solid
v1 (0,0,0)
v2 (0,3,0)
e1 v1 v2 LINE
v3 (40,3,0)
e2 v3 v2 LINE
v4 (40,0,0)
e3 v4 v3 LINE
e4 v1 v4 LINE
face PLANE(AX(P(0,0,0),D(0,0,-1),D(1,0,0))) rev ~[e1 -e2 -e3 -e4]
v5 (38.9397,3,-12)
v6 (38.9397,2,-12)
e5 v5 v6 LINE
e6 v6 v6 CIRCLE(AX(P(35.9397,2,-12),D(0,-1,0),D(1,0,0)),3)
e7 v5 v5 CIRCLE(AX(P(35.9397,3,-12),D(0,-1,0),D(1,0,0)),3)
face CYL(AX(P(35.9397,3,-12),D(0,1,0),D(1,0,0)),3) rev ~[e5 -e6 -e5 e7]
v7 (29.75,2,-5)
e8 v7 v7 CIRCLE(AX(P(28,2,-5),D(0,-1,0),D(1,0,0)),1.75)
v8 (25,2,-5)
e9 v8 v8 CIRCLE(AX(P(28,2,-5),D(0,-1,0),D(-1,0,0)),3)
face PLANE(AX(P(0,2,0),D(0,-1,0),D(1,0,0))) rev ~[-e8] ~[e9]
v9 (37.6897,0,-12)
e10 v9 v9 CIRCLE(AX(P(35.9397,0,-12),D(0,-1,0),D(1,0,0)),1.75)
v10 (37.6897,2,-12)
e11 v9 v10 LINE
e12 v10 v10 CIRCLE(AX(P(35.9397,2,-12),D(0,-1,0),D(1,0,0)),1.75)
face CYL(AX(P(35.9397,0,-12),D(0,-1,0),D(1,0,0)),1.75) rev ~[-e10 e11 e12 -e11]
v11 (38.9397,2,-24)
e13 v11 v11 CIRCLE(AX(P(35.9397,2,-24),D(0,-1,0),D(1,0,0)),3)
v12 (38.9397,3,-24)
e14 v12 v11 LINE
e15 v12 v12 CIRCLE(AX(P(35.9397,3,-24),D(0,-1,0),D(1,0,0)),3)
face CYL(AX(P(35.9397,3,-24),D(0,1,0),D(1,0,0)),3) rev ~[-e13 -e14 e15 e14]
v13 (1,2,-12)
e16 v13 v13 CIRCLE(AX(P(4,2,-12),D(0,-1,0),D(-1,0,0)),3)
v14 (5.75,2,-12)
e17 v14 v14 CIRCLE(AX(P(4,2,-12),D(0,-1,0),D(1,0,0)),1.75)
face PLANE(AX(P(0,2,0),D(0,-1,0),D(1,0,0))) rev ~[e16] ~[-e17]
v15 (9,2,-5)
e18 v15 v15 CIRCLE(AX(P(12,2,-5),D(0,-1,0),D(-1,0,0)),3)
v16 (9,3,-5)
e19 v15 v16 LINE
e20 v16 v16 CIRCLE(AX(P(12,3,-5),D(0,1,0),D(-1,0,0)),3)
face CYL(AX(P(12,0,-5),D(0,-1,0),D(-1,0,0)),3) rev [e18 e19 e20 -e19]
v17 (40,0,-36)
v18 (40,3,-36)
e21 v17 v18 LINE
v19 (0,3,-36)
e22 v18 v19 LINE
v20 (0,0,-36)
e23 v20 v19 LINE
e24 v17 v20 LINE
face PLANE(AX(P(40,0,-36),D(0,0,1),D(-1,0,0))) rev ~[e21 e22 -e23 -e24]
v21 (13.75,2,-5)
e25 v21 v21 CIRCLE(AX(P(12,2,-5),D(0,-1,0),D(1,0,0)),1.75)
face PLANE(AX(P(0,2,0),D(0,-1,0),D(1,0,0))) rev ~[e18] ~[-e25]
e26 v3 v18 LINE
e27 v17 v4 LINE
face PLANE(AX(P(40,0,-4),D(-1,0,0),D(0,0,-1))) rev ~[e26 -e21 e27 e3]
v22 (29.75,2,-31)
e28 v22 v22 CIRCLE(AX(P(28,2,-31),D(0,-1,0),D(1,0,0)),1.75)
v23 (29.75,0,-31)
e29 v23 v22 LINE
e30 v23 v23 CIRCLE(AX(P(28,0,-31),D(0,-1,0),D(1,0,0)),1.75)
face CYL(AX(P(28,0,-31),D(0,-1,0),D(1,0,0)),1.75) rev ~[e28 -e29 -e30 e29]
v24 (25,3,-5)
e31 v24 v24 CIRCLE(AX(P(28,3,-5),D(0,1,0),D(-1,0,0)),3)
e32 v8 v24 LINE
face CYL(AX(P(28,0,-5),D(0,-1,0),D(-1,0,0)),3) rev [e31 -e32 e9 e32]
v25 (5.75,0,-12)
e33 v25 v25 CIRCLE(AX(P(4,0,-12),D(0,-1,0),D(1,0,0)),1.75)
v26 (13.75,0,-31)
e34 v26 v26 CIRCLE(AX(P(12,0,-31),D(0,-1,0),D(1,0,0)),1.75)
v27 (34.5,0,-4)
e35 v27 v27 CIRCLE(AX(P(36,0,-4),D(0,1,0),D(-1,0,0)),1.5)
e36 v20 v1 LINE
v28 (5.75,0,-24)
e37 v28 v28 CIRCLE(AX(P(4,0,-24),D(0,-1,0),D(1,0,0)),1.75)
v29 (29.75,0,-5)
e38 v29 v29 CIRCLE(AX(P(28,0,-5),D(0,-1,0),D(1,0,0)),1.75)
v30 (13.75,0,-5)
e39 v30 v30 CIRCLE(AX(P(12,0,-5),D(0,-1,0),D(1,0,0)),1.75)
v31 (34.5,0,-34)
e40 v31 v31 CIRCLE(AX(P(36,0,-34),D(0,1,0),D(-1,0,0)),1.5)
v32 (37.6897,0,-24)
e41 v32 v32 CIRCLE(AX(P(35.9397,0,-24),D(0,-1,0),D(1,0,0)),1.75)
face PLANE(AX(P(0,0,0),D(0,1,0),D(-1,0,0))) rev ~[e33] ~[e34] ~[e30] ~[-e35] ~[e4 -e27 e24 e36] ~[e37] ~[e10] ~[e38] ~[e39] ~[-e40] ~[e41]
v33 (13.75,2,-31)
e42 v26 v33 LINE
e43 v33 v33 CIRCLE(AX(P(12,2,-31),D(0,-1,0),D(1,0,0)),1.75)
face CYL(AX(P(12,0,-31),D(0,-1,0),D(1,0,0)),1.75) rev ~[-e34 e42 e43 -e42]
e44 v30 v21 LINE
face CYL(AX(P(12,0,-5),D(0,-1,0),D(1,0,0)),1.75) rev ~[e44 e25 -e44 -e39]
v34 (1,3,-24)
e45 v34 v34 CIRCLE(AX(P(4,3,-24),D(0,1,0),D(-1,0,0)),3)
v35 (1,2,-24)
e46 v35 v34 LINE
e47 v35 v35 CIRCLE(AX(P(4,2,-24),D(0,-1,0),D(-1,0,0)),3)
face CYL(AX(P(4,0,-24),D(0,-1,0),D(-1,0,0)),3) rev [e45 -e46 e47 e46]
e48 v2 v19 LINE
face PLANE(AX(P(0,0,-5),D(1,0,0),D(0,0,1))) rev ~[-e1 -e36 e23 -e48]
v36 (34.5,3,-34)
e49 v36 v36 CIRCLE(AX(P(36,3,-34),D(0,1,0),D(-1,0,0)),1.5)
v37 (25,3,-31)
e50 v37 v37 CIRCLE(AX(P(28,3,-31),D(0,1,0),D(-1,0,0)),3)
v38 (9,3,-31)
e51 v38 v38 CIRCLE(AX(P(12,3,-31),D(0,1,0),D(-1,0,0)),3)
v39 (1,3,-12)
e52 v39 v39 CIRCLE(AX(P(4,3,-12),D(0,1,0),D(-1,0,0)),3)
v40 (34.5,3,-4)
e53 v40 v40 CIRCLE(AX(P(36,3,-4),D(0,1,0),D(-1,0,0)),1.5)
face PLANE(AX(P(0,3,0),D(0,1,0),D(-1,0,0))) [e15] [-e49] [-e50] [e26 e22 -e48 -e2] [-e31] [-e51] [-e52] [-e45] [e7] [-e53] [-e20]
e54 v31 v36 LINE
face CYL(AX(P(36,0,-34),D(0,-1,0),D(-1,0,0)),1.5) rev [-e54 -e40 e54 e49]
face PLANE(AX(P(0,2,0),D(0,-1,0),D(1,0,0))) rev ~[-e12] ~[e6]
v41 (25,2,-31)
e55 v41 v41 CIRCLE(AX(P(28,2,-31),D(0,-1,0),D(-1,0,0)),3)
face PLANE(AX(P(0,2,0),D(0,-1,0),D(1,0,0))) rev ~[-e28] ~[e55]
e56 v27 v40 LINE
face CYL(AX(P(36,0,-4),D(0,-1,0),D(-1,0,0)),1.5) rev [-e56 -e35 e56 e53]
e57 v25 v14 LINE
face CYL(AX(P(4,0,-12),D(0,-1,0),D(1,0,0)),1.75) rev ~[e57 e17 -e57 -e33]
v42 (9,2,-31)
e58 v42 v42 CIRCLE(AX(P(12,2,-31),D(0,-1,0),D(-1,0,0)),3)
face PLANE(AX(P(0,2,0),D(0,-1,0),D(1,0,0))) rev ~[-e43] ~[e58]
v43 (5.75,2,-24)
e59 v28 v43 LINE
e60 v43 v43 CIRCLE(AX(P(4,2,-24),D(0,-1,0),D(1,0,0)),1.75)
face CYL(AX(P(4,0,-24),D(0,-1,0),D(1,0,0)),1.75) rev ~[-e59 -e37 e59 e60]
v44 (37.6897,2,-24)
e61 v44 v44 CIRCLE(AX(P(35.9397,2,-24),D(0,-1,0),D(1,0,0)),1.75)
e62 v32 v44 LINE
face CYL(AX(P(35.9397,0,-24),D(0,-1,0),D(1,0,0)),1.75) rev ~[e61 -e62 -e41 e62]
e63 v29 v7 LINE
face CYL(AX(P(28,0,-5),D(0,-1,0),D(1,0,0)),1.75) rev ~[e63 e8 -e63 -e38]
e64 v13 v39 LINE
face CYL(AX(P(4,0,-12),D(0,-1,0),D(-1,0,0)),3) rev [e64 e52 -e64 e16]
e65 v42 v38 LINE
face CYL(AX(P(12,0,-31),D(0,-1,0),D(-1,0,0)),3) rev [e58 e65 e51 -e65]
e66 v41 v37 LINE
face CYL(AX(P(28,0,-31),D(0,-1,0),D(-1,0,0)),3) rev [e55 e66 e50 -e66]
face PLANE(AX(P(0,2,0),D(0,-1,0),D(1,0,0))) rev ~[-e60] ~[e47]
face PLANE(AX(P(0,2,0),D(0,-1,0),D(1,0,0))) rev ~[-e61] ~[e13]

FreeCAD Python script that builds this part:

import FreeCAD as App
import Part
import Sketcher
from FreeCAD import Vector


def add_polygon(sketch, points):
    """Adds a closed chain of lines whose ends are joined by coincident constraints."""
    first, n = sketch.GeometryCount, len(points)
    for a, b in zip(points, points[1:] + points[:1]):
        sketch.addGeometry(Part.LineSegment(App.Vector(*a, 0), App.Vector(*b, 0)), False)
    for i in range(n):
        sketch.addConstraint(Sketcher.Constraint("Coincident", first + i, 2, first + (i + 1) % n, 1))

doc = App.newDocument("Part")
body = doc.addObject("PartDesign::Body", "Body")

sketch1 = body.newObject("Sketcher::SketchObject", "Sketch")
sketch1.AttachmentSupport = (doc.getObject("XZ_Plane"), [""])
sketch1.MapMode = "FlatFace"
add_polygon(sketch1, [(0, -36), (0, 0), (40, 0), (40, -36)])
sketch1.addGeometry(Part.Circle(Vector(36, -34, 0), Vector(0, 0, 1), 1.5), False)
sketch1.addGeometry(Part.Circle(Vector(28, -31, 0), Vector(0, 0, 1), 3), False)
sketch1.addGeometry(Part.Circle(Vector(12, -31, 0), Vector(0, 0, 1), 3), False)
sketch1.addGeometry(Part.Circle(Vector(4, -24, 0), Vector(0, 0, 1), 3), False)
sketch1.addGeometry(Part.Circle(Vector(36, -4, 0), Vector(0, 0, 1), 1.5), False)
sketch1.addGeometry(Part.Circle(Vector(28, -5, 0), Vector(0, 0, 1), 3), False)
sketch1.addGeometry(Part.Circle(Vector(4, -12, 0), Vector(0, 0, 1), 3), False)
sketch1.addGeometry(Part.Circle(Vector(12, -5, 0), Vector(0, 0, 1), 3), False)
sketch1.addConstraint(Sketcher.Constraint("Vertical", 0))
sketch1.addConstraint(Sketcher.Constraint("Horizontal", 1))
sketch1.addConstraint(Sketcher.Constraint("Vertical", 2))
sketch1.addConstraint(Sketcher.Constraint("Horizontal", 3))
sketch1.addConstraint(Sketcher.Constraint("Coincident", 0, 2, -1, 1))
sketch1.addConstraint(Sketcher.Constraint("Equal", 5, 6))
sketch1.addConstraint(Sketcher.Constraint("Equal", 6, 7))
sketch1.addConstraint(Sketcher.Constraint("Equal", 4, 8))
sketch1.addConstraint(Sketcher.Constraint("Equal", 7, 9))
sketch1.addConstraint(Sketcher.Constraint("Equal", 9, 10))
sketch1.addConstraint(Sketcher.Constraint("Equal", 10, 11))
sketch1.addConstraint(Sketcher.Constraint("Horizontal", 5, 3, 6, 3))
sketch1.addConstraint(Sketcher.Constraint("Horizontal", 9, 3, 11, 3))
sketch1.addConstraint(Sketcher.Constraint("Vertical", 4, 3, 8, 3))
sketch1.addConstraint(Sketcher.Constraint("Vertical", 5, 3, 9, 3))
sketch1.addConstraint(Sketcher.Constraint("Vertical", 7, 3, 10, 3))
sketch1.addConstraint(Sketcher.Constraint("Vertical", 6, 3, 11, 3))
sketch1.addConstraint(Sketcher.Constraint("Diameter", 4, 3.0))
sketch1.addConstraint(Sketcher.Constraint("Diameter", 5, 6.0))
sketch1.addConstraint(Sketcher.Constraint("DistanceX", 1, 1, 1, 2, 40.0))
sketch1.addConstraint(Sketcher.Constraint("DistanceY", 0, 1, 0, 2, 36.0))
sketch1.addConstraint(Sketcher.Constraint("DistanceX", -1, 1, 4, 3, 36.0))
sketch1.addConstraint(Sketcher.Constraint("DistanceX", -1, 1, 5, 3, 28.0))
sketch1.addConstraint(Sketcher.Constraint("DistanceY", 5, 3, -1, 1, 31.0))
sketch1.addConstraint(Sketcher.Constraint("DistanceX", -1, 1, 6, 3, 12.0))
sketch1.addConstraint(Sketcher.Constraint("DistanceX", -1, 1, 7, 3, 4.0))
sketch1.addConstraint(Sketcher.Constraint("DistanceY", 7, 3, -1, 1, 24.0))
sketch1.addConstraint(Sketcher.Constraint("DistanceY", 8, 3, -1, 1, 4.0))
sketch1.addConstraint(Sketcher.Constraint("DistanceY", 9, 3, -1, 1, 5.0))
sketch1.addConstraint(Sketcher.Constraint("DistanceY", 10, 3, -1, 1, 12.0))
sketch1.addConstraint(Sketcher.Constraint("DistanceY", 4, 3, 5, 3, 3.0))
pad1 = body.newObject("PartDesign::Pad", "Pad")
pad1.Profile = sketch1
pad1.Length = 3
pad1.Reversed = True

sketch2 = body.newObject("Sketcher::SketchObject", "Sketch001")
sketch2.AttachmentSupport = (doc.getObject("XZ_Plane"), [""])
sketch2.MapMode = "FlatFace"
sketch2.AttachmentOffset = App.Placement(Vector(0, 0, -3), App.Rotation())
sketch2.addGeometry(Part.Circle(Vector(35.9, -12, 0), Vector(0, 0, 1), 3), False)
sketch2.addGeometry(Part.Circle(Vector(35.9, -24, 0), Vector(0, 0, 1), 3), False)
sketch2.addConstraint(Sketcher.Constraint("Equal", 0, 1))
sketch2.addConstraint(Sketcher.Constraint("Vertical", 0, 3, 1, 3))
sketch2.addConstraint(Sketcher.Constraint("Diameter", 0, 6.0))
sketch2.addConstraint(Sketcher.Constraint("DistanceY", 0, 3, -1, 1, 12.0))
sketch2.addConstraint(Sketcher.Constraint("DistanceY", 1, 3, 0, 3, 12.0))
sketch2.addConstraint(Sketcher.Constraint("DistanceX", -1, 1, 0, 3, 35.9397))
pocket1 = body.newObject("PartDesign::Pocket", "Pocket")
pocket1.Profile = sketch2
pocket1.Length = 3
pocket1.Reversed = True

sketch3 = body.newObject("Sketcher::SketchObject", "Sketch002")
sketch3.AttachmentSupport = (doc.getObject("XZ_Plane"), [""])
sketch3.MapMode = "FlatFace"
sketch3.addGeometry(Part.Circle(Vector(12, -5, 0), Vector(0, 0, 1), 3), False)
sketch3.addGeometry(Part.Circle(Vector(12, -5, 0), Vector(0, 0, 1), 1.8), False)
sketch3.addGeometry(Part.Circle(Vector(28, -5, 0), Vector(0, 0, 1), 3), False)
sketch3.addGeometry(Part.Circle(Vector(28, -5, 0), Vector(0, 0, 1), 1.8), False)
sketch3.addGeometry(Part.Circle(Vector(4, -12, 0), Vector(0, 0, 1), 3), False)
sketch3.addGeometry(Part.Circle(Vector(4, -12, 0), Vector(0, 0, 1), 1.8), False)
sketch3.addGeometry(Part.Circle(Vector(35.9, -12, 0), Vector(0, 0, 1), 3), False)
sketch3.addGeometry(Part.Circle(Vector(35.9, -12, 0), Vector(0, 0, 1), 1.8), False)
sketch3.addGeometry(Part.Circle(Vector(35.9, -24, 0), Vector(0, 0, 1), 3), False)
sketch3.addGeometry(Part.Circle(Vector(35.9, -24, 0), Vector(0, 0, 1), 1.8), False)
sketch3.addGeometry(Part.Circle(Vector(28, -31, 0), Vector(0, 0, 1), 3), False)
sketch3.addGeometry(Part.Circle(Vector(28, -31, 0), Vector(0, 0, 1), 1.8), False)
sketch3.addGeometry(Part.Circle(Vector(12, -31, 0), Vector(0, 0, 1), 3), False)
sketch3.addGeometry(Part.Circle(Vector(12, -31, 0), Vector(0, 0, 1), 1.8), False)
sketch3.addGeometry(Part.Circle(Vector(4, -24, 0), Vector(0, 0, 1), 3), False)
sketch3.addGeometry(Part.Circle(Vector(4, -24, 0), Vector(0, 0, 1), 1.8), False)
sketch3.addConstraint(Sketcher.Constraint("Coincident", 1, 3, 0, 3))
sketch3.addConstraint(Sketcher.Constraint("Coincident", 3, 3, 2, 3))
sketch3.addConstraint(Sketcher.Constraint("Coincident", 5, 3, 4, 3))
sketch3.addConstraint(Sketcher.Constraint("Coincident", 7, 3, 6, 3))
sketch3.addConstraint(Sketcher.Constraint("Coincident", 9, 3, 8, 3))
sketch3.addConstraint(Sketcher.Constraint("Coincident", 11, 3, 10, 3))
sketch3.addConstraint(Sketcher.Constraint("Coincident", 13, 3, 12, 3))
sketch3.addConstraint(Sketcher.Constraint("Coincident", 15, 3, 14, 3))
sketch3.addConstraint(Sketcher.Constraint("Equal", 0, 2))
sketch3.addConstraint(Sketcher.Constraint("Equal", 1, 3))
sketch3.addConstraint(Sketcher.Constraint("Equal", 2, 4))
sketch3.addConstraint(Sketcher.Constraint("Equal", 3, 5))
sketch3.addConstraint(Sketcher.Constraint("Equal", 4, 6))
sketch3.addConstraint(Sketcher.Constraint("Equal", 5, 7))
sketch3.addConstraint(Sketcher.Constraint("Equal", 6, 8))
sketch3.addConstraint(Sketcher.Constraint("Equal", 7, 9))
sketch3.addConstraint(Sketcher.Constraint("Equal", 8, 10))
sketch3.addConstraint(Sketcher.Constraint("Equal", 9, 11))
sketch3.addConstraint(Sketcher.Constraint("Equal", 10, 12))
sketch3.addConstraint(Sketcher.Constraint("Equal", 11, 13))
sketch3.addConstraint(Sketcher.Constraint("Equal", 12, 14))
sketch3.addConstraint(Sketcher.Constraint("Equal", 13, 15))
sketch3.addConstraint(Sketcher.Constraint("Horizontal", 1, 3, 2, 3))
sketch3.addConstraint(Sketcher.Constraint("Horizontal", 5, 3, 6, 3))
sketch3.addConstraint(Sketcher.Constraint("Horizontal", 11, 3, 12, 3))
sketch3.addConstraint(Sketcher.Constraint("Horizontal", 9, 3, 14, 3))
sketch3.addConstraint(Sketcher.Constraint("Vertical", 7, 3, 8, 3))
sketch3.addConstraint(Sketcher.Constraint("Vertical", 3, 3, 10, 3))
sketch3.addConstraint(Sketcher.Constraint("Vertical", 1, 3, 12, 3))
sketch3.addConstraint(Sketcher.Constraint("Vertical", 5, 3, 14, 3))
sketch3.addConstraint(Sketcher.Constraint("Diameter", 0, 6.0))
sketch3.addConstraint(Sketcher.Constraint("Diameter", 1, 3.5))
sketch3.addConstraint(Sketcher.Constraint("DistanceX", -1, 1, 0, 3, 12.0))
sketch3.addConstraint(Sketcher.Constraint("DistanceY", 0, 3, -1, 1, 5.0))
sketch3.addConstraint(Sketcher.Constraint("DistanceX", -1, 1, 2, 3, 28.0))
sketch3.addConstraint(Sketcher.Constraint("DistanceX", -1, 1, 4, 3, 4.0))
sketch3.addConstraint(Sketcher.Constraint("DistanceY", 4, 3, -1, 1, 12.0))
sketch3.addConstraint(Sketcher.Constraint("DistanceY", 8, 3, -1, 1, 24.0))
sketch3.addConstraint(Sketcher.Constraint("DistanceY", 10, 3, -1, 1, 31.0))
sketch3.addConstraint(Sketcher.Constraint("DistanceX", -1, 1, 6, 3, 35.9397))
pad2 = body.newObject("PartDesign::Pad", "Pad001")
pad2.Profile = sketch3
pad2.Length = 2
pad2.Reversed = True

doc.recompute()
